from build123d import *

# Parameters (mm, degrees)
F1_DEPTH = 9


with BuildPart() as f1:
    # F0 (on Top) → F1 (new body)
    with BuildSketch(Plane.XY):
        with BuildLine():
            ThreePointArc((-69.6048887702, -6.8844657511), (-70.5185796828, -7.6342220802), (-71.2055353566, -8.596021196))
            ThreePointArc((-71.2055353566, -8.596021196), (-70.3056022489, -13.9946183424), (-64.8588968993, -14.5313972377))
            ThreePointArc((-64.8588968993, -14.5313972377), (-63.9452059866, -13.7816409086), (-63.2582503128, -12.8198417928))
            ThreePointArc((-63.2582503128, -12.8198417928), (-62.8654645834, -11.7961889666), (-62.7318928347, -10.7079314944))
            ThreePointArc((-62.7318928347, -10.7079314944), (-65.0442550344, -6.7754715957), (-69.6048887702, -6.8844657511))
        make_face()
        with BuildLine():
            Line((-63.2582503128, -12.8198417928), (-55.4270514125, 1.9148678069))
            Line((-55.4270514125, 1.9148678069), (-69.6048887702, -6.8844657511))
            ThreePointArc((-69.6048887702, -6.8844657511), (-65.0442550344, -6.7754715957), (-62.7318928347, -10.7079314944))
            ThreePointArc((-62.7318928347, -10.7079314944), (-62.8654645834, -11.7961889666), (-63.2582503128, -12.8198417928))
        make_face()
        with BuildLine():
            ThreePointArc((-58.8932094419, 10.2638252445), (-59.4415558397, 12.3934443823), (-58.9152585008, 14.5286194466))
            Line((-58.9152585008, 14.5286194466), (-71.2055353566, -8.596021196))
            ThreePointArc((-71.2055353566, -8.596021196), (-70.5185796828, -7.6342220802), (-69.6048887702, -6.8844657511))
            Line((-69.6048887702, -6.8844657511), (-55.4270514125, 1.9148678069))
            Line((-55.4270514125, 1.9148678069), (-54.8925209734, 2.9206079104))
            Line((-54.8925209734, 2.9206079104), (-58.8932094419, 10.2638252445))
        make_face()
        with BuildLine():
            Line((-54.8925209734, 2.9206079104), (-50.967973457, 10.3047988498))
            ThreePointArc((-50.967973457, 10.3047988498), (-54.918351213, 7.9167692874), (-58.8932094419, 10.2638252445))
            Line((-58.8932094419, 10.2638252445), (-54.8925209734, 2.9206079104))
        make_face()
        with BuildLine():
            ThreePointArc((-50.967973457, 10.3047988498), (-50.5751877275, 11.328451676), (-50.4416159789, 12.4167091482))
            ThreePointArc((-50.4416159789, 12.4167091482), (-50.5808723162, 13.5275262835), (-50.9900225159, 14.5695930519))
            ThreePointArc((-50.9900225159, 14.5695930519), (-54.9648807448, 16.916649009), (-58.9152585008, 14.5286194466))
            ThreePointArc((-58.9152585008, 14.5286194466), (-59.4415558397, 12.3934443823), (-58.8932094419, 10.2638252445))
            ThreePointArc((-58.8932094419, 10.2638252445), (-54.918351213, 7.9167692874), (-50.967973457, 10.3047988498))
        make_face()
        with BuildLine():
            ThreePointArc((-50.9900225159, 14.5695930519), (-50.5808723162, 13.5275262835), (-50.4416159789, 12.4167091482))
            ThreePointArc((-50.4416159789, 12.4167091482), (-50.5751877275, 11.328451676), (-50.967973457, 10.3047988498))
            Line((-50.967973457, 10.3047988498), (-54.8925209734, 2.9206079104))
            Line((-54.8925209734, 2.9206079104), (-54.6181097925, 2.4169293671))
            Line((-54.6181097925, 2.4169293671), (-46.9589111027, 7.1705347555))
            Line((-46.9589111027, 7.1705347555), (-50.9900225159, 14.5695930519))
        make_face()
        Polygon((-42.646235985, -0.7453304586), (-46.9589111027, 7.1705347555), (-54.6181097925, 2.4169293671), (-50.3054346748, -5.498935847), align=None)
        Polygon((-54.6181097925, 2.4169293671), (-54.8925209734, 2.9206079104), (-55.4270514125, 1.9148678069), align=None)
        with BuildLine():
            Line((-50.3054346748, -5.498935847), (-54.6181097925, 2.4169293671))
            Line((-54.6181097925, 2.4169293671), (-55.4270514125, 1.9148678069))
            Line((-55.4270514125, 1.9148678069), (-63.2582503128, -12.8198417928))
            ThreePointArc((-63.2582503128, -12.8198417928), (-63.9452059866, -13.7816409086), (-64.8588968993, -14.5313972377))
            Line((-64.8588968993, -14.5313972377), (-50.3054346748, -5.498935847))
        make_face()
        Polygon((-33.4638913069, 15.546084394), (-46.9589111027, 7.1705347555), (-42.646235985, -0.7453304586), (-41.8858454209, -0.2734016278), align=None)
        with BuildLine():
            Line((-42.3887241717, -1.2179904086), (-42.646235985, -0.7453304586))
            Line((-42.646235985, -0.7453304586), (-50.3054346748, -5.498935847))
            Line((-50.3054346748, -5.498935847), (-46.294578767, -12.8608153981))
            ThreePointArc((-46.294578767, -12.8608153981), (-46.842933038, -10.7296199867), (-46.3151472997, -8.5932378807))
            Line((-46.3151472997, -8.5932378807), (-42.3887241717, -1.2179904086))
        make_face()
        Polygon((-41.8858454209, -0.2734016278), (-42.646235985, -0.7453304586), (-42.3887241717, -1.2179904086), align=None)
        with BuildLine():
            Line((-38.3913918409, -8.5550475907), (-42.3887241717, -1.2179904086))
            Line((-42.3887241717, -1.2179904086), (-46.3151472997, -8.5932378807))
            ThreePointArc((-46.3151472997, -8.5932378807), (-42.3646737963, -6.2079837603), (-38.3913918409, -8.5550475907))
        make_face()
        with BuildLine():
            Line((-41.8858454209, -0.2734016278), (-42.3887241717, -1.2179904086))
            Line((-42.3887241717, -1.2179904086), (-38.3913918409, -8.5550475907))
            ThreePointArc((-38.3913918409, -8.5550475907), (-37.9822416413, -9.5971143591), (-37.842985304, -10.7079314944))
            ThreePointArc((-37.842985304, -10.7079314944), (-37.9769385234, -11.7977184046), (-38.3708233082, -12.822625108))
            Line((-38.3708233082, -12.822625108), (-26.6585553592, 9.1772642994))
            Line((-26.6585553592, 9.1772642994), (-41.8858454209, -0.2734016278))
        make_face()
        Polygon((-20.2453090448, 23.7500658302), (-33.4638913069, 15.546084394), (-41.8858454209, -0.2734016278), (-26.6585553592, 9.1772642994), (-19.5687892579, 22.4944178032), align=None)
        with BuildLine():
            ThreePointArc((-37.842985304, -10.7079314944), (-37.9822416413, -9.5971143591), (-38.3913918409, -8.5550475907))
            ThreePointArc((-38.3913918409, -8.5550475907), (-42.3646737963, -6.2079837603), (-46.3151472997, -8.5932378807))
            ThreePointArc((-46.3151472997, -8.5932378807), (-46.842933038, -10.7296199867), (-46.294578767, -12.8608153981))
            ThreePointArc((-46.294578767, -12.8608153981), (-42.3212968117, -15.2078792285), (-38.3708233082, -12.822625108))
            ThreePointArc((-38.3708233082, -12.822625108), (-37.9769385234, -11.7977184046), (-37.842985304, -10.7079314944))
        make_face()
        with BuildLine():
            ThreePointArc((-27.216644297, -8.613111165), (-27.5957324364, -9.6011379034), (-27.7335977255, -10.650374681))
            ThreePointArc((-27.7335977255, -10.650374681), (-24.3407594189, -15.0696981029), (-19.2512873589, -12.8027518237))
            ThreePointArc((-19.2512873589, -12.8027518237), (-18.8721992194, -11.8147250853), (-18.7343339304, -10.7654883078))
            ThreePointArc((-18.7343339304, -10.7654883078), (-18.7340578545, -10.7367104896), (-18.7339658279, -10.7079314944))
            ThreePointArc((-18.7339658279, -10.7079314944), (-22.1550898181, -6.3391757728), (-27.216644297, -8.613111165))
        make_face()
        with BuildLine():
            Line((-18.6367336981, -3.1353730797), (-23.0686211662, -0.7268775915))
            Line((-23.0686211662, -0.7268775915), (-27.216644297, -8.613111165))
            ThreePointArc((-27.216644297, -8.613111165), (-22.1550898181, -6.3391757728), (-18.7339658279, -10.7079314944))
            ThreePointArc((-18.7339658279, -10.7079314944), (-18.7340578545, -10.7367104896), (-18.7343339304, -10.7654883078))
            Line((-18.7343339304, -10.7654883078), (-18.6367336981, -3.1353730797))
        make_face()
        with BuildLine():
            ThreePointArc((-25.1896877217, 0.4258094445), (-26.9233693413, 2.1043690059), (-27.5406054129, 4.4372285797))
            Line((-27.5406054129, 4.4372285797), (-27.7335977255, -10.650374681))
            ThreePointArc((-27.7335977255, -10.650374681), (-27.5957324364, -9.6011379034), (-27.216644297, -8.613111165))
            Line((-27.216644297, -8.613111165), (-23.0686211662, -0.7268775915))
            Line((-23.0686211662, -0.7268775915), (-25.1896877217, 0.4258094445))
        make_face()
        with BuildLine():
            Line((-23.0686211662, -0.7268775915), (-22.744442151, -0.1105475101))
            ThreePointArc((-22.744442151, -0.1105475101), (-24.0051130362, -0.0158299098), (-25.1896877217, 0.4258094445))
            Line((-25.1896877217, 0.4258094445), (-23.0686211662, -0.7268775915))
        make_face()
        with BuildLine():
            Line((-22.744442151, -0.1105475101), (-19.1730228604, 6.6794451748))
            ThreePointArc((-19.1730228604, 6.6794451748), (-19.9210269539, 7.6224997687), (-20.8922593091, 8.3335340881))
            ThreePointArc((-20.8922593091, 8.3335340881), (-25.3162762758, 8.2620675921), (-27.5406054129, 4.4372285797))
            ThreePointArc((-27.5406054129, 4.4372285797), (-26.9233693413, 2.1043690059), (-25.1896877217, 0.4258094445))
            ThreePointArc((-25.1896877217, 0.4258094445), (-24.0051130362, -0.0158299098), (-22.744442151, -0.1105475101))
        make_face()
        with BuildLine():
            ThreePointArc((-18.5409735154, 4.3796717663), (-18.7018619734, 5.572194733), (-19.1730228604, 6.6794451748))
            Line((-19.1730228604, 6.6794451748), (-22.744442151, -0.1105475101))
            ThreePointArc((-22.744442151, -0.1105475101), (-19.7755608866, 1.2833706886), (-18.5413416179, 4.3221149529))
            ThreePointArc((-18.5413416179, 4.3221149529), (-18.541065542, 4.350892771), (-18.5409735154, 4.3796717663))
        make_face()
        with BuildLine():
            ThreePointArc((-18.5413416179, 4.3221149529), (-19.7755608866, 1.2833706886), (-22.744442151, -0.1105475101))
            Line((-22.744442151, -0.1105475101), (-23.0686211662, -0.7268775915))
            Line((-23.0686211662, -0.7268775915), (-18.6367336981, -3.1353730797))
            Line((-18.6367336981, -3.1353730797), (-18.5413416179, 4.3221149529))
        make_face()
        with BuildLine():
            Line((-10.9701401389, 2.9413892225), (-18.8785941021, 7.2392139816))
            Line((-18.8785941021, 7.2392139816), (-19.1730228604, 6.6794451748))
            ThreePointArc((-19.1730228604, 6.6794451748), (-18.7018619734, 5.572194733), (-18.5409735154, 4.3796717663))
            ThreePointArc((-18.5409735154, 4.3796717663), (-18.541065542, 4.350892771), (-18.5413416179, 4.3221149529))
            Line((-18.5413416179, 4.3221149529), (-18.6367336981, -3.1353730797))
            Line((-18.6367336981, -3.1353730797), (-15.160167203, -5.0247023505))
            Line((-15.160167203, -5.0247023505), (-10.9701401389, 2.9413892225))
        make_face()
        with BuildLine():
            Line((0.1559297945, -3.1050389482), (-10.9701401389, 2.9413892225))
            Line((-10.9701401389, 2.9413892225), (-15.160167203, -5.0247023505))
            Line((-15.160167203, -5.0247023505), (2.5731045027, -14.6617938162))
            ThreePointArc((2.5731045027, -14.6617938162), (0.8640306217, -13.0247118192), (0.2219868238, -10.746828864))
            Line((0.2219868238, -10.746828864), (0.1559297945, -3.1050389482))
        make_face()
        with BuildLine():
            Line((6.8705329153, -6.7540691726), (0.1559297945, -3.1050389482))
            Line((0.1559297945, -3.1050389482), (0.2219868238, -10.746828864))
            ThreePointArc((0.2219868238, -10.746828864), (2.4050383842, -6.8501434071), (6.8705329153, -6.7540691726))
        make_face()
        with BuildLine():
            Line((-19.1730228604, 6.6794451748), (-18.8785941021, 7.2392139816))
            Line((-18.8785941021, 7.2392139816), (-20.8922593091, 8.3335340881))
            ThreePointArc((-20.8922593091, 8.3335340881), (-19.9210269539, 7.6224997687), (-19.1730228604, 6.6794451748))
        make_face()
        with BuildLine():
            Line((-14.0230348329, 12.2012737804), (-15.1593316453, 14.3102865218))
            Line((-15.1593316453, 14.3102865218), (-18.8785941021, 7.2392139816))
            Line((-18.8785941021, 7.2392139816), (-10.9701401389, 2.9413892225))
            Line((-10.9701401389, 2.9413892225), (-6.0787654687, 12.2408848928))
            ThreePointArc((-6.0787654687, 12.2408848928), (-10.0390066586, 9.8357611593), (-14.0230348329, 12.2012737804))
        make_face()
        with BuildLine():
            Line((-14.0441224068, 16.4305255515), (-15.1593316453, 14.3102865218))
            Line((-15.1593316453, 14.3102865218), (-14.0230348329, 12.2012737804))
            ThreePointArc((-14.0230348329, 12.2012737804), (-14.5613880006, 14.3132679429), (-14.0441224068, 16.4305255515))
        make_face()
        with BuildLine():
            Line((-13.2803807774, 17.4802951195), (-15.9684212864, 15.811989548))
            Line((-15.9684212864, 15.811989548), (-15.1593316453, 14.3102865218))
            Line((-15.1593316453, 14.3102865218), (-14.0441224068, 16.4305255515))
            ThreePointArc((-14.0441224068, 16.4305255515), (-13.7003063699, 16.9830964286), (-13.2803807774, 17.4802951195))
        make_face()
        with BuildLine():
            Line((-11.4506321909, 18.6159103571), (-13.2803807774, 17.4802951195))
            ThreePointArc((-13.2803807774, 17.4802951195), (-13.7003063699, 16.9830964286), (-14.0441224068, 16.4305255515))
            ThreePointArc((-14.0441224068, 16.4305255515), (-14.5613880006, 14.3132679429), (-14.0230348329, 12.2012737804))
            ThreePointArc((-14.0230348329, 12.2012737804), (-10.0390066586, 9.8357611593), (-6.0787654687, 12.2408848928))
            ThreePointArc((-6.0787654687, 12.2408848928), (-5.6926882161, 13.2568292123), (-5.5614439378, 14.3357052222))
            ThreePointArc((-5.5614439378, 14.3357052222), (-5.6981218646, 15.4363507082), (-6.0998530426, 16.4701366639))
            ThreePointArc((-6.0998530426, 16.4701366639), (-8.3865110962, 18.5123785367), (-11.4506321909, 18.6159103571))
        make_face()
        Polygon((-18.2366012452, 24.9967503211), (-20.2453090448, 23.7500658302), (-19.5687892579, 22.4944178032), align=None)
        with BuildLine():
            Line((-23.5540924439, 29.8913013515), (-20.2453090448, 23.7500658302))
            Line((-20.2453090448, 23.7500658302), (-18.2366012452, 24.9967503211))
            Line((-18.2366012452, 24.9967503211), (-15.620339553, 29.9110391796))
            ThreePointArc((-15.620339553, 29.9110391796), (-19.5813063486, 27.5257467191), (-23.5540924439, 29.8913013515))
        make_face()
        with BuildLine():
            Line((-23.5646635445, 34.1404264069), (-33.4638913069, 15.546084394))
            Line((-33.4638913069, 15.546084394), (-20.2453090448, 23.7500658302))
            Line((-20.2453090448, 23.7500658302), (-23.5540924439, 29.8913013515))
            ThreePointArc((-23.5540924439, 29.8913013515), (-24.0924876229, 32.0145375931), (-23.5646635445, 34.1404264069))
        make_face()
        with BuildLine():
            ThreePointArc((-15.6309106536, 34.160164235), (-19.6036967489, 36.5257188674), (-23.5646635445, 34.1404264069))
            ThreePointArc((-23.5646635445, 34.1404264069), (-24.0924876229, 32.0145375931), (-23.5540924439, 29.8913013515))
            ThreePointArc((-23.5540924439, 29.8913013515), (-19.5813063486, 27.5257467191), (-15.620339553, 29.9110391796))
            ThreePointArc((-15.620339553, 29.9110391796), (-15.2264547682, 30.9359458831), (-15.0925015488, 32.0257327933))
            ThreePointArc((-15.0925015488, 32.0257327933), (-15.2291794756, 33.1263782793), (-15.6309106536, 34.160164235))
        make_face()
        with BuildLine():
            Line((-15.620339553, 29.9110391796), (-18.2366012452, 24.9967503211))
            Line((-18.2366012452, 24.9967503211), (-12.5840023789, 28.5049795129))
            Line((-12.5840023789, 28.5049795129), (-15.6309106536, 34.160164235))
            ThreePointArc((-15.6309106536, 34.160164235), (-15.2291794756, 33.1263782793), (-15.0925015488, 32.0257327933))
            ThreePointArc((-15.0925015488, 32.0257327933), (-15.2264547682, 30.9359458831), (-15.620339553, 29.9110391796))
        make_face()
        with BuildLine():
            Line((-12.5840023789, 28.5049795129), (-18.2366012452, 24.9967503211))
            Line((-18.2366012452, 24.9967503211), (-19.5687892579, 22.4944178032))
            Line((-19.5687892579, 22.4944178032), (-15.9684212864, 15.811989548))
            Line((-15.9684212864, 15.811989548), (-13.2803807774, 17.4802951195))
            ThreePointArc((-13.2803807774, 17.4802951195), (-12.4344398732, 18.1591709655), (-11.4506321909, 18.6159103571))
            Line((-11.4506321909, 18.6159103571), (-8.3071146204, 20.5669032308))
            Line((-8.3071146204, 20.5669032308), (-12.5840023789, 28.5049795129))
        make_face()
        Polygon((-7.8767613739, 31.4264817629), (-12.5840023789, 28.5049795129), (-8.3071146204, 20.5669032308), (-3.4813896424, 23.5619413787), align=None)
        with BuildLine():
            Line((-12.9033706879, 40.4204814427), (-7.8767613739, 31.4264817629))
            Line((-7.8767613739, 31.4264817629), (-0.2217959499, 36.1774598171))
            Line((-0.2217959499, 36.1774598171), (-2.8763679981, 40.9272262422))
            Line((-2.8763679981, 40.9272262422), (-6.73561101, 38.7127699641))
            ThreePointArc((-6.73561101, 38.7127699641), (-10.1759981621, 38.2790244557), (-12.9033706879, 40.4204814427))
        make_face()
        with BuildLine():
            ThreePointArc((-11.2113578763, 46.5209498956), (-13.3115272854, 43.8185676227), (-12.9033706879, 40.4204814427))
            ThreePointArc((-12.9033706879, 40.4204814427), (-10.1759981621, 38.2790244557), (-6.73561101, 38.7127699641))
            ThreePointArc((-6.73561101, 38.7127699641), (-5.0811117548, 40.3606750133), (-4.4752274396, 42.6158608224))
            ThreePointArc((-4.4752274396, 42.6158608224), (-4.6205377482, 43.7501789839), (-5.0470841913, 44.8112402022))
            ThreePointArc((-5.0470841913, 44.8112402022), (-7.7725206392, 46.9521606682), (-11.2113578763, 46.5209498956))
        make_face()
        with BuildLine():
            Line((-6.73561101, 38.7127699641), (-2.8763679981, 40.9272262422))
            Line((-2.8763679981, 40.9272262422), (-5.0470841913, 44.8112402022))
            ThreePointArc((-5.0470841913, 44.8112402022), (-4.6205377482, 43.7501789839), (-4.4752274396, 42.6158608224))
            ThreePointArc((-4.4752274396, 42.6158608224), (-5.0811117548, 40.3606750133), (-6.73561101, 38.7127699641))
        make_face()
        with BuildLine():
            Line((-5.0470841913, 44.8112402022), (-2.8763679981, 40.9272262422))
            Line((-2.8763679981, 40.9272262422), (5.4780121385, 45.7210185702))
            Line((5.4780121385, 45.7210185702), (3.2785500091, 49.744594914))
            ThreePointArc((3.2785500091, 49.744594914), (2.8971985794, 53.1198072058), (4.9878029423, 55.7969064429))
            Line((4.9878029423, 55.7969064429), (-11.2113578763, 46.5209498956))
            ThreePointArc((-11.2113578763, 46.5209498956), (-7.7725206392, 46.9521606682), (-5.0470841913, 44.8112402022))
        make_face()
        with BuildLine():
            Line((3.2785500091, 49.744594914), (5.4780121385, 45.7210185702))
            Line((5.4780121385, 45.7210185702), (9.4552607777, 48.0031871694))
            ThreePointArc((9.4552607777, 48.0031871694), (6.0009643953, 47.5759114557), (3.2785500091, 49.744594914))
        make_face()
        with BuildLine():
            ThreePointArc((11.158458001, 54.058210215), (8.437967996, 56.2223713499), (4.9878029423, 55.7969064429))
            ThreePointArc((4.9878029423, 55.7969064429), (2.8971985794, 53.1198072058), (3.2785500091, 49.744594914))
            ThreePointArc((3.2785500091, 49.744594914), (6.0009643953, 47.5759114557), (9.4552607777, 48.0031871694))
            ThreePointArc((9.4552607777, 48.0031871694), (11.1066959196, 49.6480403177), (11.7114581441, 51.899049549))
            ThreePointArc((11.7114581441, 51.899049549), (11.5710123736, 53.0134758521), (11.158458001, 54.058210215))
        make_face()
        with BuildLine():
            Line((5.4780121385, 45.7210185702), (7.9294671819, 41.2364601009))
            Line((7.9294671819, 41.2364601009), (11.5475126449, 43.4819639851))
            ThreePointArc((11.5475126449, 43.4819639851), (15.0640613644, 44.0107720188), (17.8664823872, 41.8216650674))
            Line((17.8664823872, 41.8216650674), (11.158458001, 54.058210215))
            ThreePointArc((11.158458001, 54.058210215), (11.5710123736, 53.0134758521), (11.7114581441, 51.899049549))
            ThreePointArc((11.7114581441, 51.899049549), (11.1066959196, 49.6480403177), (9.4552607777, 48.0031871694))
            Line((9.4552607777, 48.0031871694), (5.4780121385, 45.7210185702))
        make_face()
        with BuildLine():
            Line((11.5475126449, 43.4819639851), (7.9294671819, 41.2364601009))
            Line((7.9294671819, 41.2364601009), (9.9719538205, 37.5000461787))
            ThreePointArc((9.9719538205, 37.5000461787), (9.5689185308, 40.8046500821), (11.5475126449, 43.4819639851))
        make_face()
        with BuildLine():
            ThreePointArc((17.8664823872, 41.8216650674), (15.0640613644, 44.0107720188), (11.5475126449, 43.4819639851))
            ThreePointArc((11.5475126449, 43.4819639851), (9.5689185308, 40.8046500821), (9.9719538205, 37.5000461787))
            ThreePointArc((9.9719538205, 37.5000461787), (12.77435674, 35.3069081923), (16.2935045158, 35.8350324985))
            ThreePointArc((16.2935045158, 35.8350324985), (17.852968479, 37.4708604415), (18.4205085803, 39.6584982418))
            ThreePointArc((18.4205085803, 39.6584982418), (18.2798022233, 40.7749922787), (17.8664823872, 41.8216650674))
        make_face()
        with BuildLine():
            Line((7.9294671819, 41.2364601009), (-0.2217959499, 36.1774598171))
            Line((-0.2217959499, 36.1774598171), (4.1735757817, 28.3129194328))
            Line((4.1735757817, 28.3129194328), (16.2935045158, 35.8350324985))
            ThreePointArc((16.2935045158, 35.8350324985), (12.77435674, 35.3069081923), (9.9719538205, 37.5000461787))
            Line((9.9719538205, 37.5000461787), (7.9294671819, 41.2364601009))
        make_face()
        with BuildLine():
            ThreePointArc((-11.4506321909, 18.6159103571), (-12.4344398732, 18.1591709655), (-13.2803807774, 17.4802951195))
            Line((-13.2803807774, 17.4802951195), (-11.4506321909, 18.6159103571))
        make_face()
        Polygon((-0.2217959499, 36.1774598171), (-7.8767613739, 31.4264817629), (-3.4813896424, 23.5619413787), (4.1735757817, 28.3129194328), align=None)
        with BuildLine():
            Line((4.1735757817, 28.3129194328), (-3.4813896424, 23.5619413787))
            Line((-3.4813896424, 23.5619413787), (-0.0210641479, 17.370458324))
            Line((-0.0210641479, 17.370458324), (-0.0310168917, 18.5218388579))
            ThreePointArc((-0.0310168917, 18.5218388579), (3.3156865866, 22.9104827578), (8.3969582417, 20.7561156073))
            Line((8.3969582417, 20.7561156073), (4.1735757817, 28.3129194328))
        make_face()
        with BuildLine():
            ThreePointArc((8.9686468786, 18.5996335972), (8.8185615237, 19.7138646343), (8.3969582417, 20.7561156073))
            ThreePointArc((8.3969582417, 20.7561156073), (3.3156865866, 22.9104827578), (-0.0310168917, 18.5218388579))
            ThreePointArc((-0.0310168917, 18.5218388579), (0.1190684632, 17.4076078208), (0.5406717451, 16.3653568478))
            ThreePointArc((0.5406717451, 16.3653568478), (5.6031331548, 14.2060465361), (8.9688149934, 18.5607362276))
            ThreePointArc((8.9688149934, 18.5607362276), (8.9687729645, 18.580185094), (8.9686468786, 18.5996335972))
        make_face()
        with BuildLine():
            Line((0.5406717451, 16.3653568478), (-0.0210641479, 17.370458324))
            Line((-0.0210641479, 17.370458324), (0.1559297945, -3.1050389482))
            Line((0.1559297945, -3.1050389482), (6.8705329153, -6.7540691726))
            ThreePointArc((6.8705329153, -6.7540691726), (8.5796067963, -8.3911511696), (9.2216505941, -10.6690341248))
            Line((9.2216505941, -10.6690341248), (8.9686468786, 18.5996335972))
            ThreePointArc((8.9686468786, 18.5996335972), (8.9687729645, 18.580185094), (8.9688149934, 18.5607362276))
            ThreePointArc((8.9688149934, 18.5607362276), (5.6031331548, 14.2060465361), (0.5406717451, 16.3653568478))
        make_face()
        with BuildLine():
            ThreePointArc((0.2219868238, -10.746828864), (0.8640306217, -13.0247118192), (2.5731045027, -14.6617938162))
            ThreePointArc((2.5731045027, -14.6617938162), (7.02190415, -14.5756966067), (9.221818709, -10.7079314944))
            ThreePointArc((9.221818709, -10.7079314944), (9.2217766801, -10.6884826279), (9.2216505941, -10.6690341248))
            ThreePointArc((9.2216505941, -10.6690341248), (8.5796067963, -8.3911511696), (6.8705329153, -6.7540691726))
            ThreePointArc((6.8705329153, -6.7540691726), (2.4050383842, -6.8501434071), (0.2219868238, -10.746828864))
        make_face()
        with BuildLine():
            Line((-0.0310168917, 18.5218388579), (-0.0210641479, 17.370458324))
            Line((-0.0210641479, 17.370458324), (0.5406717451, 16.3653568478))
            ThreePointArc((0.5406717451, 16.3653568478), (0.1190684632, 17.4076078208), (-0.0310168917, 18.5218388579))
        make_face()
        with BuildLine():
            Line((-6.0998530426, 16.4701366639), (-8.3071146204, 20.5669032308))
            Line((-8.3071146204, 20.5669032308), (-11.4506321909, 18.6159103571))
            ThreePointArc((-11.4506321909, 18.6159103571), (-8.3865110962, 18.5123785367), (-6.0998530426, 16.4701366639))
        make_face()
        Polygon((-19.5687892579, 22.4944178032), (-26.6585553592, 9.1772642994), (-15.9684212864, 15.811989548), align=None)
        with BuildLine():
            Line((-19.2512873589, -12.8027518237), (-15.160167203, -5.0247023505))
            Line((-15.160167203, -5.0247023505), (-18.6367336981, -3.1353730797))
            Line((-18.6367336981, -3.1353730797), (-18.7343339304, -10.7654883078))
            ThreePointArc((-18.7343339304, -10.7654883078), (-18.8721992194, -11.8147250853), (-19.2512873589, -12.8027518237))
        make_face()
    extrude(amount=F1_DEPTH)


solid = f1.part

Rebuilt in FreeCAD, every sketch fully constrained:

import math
import FreeCAD as App
import Part
import Sketcher
from FreeCAD import Vector


def add_polygon(sketch, points):
    """Adds a closed chain of lines whose ends are joined by coincident constraints."""
    first, n = sketch.GeometryCount, len(points)
    for a, b in zip(points, points[1:] + points[:1]):
        sketch.addGeometry(Part.LineSegment(App.Vector(*a, 0), App.Vector(*b, 0)), False)
    for i in range(n):
        sketch.addConstraint(Sketcher.Constraint("Coincident", first + i, 2, first + (i + 1) % n, 1))

doc = App.newDocument("Part")
body = doc.addObject("PartDesign::Body", "Body")

# Sketch on XY plane
sketch1 = doc.addObject("Sketcher::SketchObject", "Sketch")
body.addObject(sketch1)
sketch1.AttachmentSupport = (doc.XY_Plane, [""])
sketch1.MapMode = "FlatFace"
sketch1.addGeometry(Part.ArcOfCircle(Part.Circle(Vector(4.468815, 18.560736, 0), Vector(0, 0, 1), 4.5), math.radians(0.495263), math.radians(29.200159)), False)  # 0
sketch1.addGeometry(Part.LineSegment(Vector(8.396958, 20.756116, 0), Vector(4.173576, 28.312919, 0)), False)  # 1
sketch1.addGeometry(Part.LineSegment(Vector(4.173576, 28.312919, 0), Vector(16.293505, 35.835032, 0)), False)  # 2
sketch1.addGeometry(Part.ArcOfCircle(Part.Circle(Vector(13.920509, 39.658498, 0), Vector(0, 0, 1), 4.5), math.radians(-58.174606), math.radians(0)), False)  # 3
sketch1.addGeometry(Part.ArcOfCircle(Part.Circle(Vector(13.920509, 39.658498, 0), Vector(0, 0, 1), 4.5), math.radians(0), math.radians(28.731374)), False)  # 4
sketch1.addGeometry(Part.LineSegment(Vector(17.866482, 41.821665, 0), Vector(11.158458, 54.05821, 0)), False)  # 5
sketch1.addGeometry(Part.ArcOfCircle(Part.Circle(Vector(7.219792, 51.89905, 0), Vector(0, 0, 1), 4.491666), math.radians(28.731374), math.radians(119.796297)), False)  # 6
sketch1.addGeometry(Part.LineSegment(Vector(4.987803, 55.796906, 0), Vector(-11.211358, 46.52095, 0)), False)  # 7
sketch1.addGeometry(Part.ArcOfCircle(Part.Circle(Vector(-8.975227, 42.615861, 0), Vector(0, 0, 1), 4.5), math.radians(119.796297), math.radians(209.200159)), False)  # 8
sketch1.addGeometry(Part.LineSegment(Vector(-12.903371, 40.420481, 0), Vector(-7.876761, 31.426482, 0)), False)  # 9
sketch1.addGeometry(Part.LineSegment(Vector(-7.876761, 31.426482, 0), Vector(-12.584002, 28.50498, 0)), False)  # 10
sketch1.addGeometry(Part.LineSegment(Vector(-12.584002, 28.50498, 0), Vector(-15.630911, 34.160164, 0)), False)  # 11
sketch1.addGeometry(Part.ArcOfCircle(Part.Circle(Vector(-19.592502, 32.025733, 0), Vector(0, 0, 1), 4.5), math.radians(28.314961), math.radians(151.970123)), False)  # 12
sketch1.addGeometry(Part.LineSegment(Vector(-23.564664, 34.140426, 0), Vector(-33.463891, 15.546084, 0)), False)  # 13
sketch1.addGeometry(Part.LineSegment(Vector(-33.463891, 15.546084, 0), Vector(-46.958911, 7.170535, 0)), False)  # 14
sketch1.addGeometry(Part.LineSegment(Vector(-46.958911, 7.170535, 0), Vector(-50.990023, 14.569593, 0)), False)  # 15
sketch1.addGeometry(Part.ArcOfCircle(Part.Circle(Vector(-54.941616, 12.416709, 0), Vector(0, 0, 1), 4.5), math.radians(28.582172), math.radians(152.010263)), False)  # 16
sketch1.addGeometry(Part.LineSegment(Vector(-58.915259, 14.528619, 0), Vector(-71.205535, -8.596021, 0)), False)  # 17
sketch1.addGeometry(Part.ArcOfCircle(Part.Circle(Vector(-67.231893, -10.707931, 0), Vector(0, 0, 1), 4.5), math.radians(152.010263), math.radians(301.825394)), False)  # 18
sketch1.addGeometry(Part.LineSegment(Vector(-64.858897, -14.531397, 0), Vector(-50.305435, -5.498936, 0)), False)  # 19
sketch1.addGeometry(Part.LineSegment(Vector(-50.305435, -5.498936, 0), Vector(-46.294579, -12.860815, 0)), False)  # 20
sketch1.addGeometry(Part.ArcOfCircle(Part.Circle(Vector(-42.342985, -10.707931, 0), Vector(0, 0, 1), 4.5), math.radians(-151.417828), math.radians(-28.029877)), False)  # 21
sketch1.addGeometry(Part.LineSegment(Vector(-38.370823, -12.822625, 0), Vector(-26.658555, 9.177264, 0)), False)  # 22
sketch1.addGeometry(Part.LineSegment(Vector(-26.658555, 9.177264, 0), Vector(-15.968421, 15.81199, 0)), False)  # 23
sketch1.addGeometry(Part.LineSegment(Vector(-15.968421, 15.81199, 0), Vector(-15.159332, 14.310287, 0)), False)  # 24
sketch1.addGeometry(Part.LineSegment(Vector(-15.159332, 14.310287, 0), Vector(-18.878594, 7.239214, 0)), False)  # 25
sketch1.addGeometry(Part.LineSegment(Vector(-18.878594, 7.239214, 0), Vector(-20.892259, 8.333534, 0)), False)  # 26
sketch1.addGeometry(Part.ArcOfCircle(Part.Circle(Vector(-23.040974, 4.379672, 0), Vector(0, 0, 1), 4.5), math.radians(61.478269), math.radians(179.267144)), False)  # 27
sketch1.addGeometry(Part.LineSegment(Vector(-27.540605, 4.437229, 0), Vector(-27.733598, -10.650375, 0)), False)  # 28
sketch1.addGeometry(Part.ArcOfCircle(Part.Circle(Vector(-23.233966, -10.707931, 0), Vector(0, 0, 1), 4.5), math.radians(179.267144), math.radians(332.256402)), False)  # 29
sketch1.addGeometry(Part.LineSegment(Vector(-19.251287, -12.802752, 0), Vector(-15.160167, -5.024702, 0)), False)  # 30
sketch1.addGeometry(Part.LineSegment(Vector(-15.160167, -5.024702, 0), Vector(2.573105, -14.661794, 0)), False)  # 31
sketch1.addGeometry(Part.ArcOfCircle(Part.Circle(Vector(4.721819, -10.707931, 0), Vector(0, 0, 1), 4.5), math.radians(-118.521731), math.radians(0)), False)  # 32
sketch1.addGeometry(Part.ArcOfCircle(Part.Circle(Vector(4.721822, -10.707931, 0), Vector(0, 0, 1), 4.499996), math.radians(0), math.radians(0.495263)), False)  # 33
sketch1.addGeometry(Part.LineSegment(Vector(9.221651, -10.669034, 0), Vector(8.968647, 18.599634, 0)), False)  # 34
sketch1.addGeometry(Part.LineSegment(Vector(-3.48139, 23.561941, 0), Vector(-0.021064, 17.370458, 0)), False)  # 35
sketch1.addGeometry(Part.LineSegment(Vector(-0.021064, 17.370458, 0), Vector(0.15593, -3.105039, 0)), False)  # 36
sketch1.addGeometry(Part.LineSegment(Vector(0.15593, -3.105039, 0), Vector(-10.97014, 2.941389, 0)), False)  # 37
sketch1.addGeometry(Part.LineSegment(Vector(-10.97014, 2.941389, 0), Vector(-6.078765, 12.240885, 0)), False)  # 38
sketch1.addGeometry(Part.ArcOfCircle(Part.Circle(Vector(-10.061444, 14.335705, 0), Vector(0, 0, 1), 4.5), math.radians(-27.743598), math.radians(0)), False)  # 39
sketch1.addGeometry(Part.ArcOfCircle(Part.Circle(Vector(-10.061444, 14.335705, 0), Vector(0, 0, 1), 4.5), math.radians(0), math.radians(28.314961)), False)  # 40
sketch1.addGeometry(Part.LineSegment(Vector(-6.099853, 16.470137, 0), Vector(-8.307115, 20.566903, 0)), False)  # 41
sketch1.addGeometry(Part.LineSegment(Vector(-8.307115, 20.566903, 0), Vector(-3.48139, 23.561941, 0)), False)  # 42
add_polygon(sketch1, [(-0.221796, 36.17746), (-2.876368, 40.927226), (5.478012, 45.721019), (7.929467, 41.23646)])  # lines 43-46
sketch1.addConstraint([
    Sketcher.Constraint("Coincident", 0, 2, 1, 1),
    Sketcher.Constraint("Coincident", 1, 2, 2, 1),
    Sketcher.Constraint("Coincident", 2, 2, 3, 1),
    Sketcher.Constraint("Coincident", 3, 2, 4, 1),
    Sketcher.Constraint("Coincident", 4, 2, 5, 1),
    Sketcher.Constraint("Coincident", 5, 2, 6, 1),
    Sketcher.Constraint("Coincident", 6, 2, 7, 1),
    Sketcher.Constraint("Coincident", 7, 2, 8, 1),
    Sketcher.Constraint("Coincident", 8, 2, 9, 1),
    Sketcher.Constraint("Coincident", 9, 2, 10, 1),
    Sketcher.Constraint("Coincident", 10, 2, 11, 1),
    Sketcher.Constraint("Coincident", 11, 2, 12, 1),
    Sketcher.Constraint("Coincident", 12, 2, 13, 1),
    Sketcher.Constraint("Coincident", 13, 2, 14, 1),
    Sketcher.Constraint("Coincident", 14, 2, 15, 1),
    Sketcher.Constraint("Coincident", 15, 2, 16, 1),
    Sketcher.Constraint("Coincident", 16, 2, 17, 1),
    Sketcher.Constraint("Coincident", 17, 2, 18, 1),
    Sketcher.Constraint("Coincident", 18, 2, 19, 1),
    Sketcher.Constraint("Coincident", 19, 2, 20, 1),
    Sketcher.Constraint("Coincident", 20, 2, 21, 1),
    Sketcher.Constraint("Coincident", 21, 2, 22, 1),
    Sketcher.Constraint("Coincident", 22, 2, 23, 1),
    Sketcher.Constraint("Coincident", 23, 2, 24, 1),
    Sketcher.Constraint("Coincident", 24, 2, 25, 1),
    Sketcher.Constraint("Coincident", 25, 2, 26, 1),
    Sketcher.Constraint("Coincident", 26, 2, 27, 1),
    Sketcher.Constraint("Coincident", 27, 2, 28, 1),
    Sketcher.Constraint("Coincident", 28, 2, 29, 1),
    Sketcher.Constraint("Coincident", 29, 2, 30, 1),
    Sketcher.Constraint("Coincident", 30, 2, 31, 1),
    Sketcher.Constraint("Coincident", 31, 2, 32, 1),
    Sketcher.Constraint("Coincident", 32, 2, 33, 1),
    Sketcher.Constraint("Coincident", 33, 2, 34, 1),
    Sketcher.Constraint("Coincident", 34, 2, 0, 1),
    Sketcher.Constraint("Coincident", 35, 2, 36, 1),
    Sketcher.Constraint("Coincident", 36, 2, 37, 1),
    Sketcher.Constraint("Coincident", 37, 2, 38, 1),
    Sketcher.Constraint("Coincident", 38, 2, 39, 1),
    Sketcher.Constraint("Coincident", 39, 2, 40, 1),
    Sketcher.Constraint("Coincident", 40, 2, 41, 1),
    Sketcher.Constraint("Coincident", 41, 2, 42, 1),
    Sketcher.Constraint("Coincident", 42, 2, 35, 1),
    Sketcher.Constraint("Coincident", 4, 3, 3, 3),
    Sketcher.Constraint("Coincident", 33, 3, 32, 3),
    Sketcher.Constraint("Coincident", 40, 3, 39, 3),
    Sketcher.Constraint("Radius", 0, 4.5),
    Sketcher.Constraint("Radius", 3, 4.5),
    Sketcher.Constraint("Radius", 8, 4.5),
    Sketcher.Constraint("Radius", 12, 4.5),
    Sketcher.Constraint("Radius", 16, 4.5),
    Sketcher.Constraint("Radius", 18, 4.5),
    Sketcher.Constraint("Radius", 21, 4.5),
    Sketcher.Constraint("Radius", 27, 4.5),
    Sketcher.Constraint("Radius", 29, 4.5),
    Sketcher.Constraint("Radius", 32, 4.5),
    Sketcher.Constraint("Radius", 39, 4.5),
    Sketcher.Constraint("Radius", 6, 4.491666),
    Sketcher.Constraint("Distance", 42, 5.679602),
    Sketcher.Constraint("DistanceY", -1, 1, 3, 3, 39.658498),
    Sketcher.Constraint("DistanceX", 12, 3, -1, 1, 19.592502),
    Sketcher.Constraint("DistanceY", -1, 1, 3, 2, 39.658498),
    Sketcher.Constraint("Distance", 1, 8.656919),
    Sketcher.Constraint("Distance", 2, 14.264461),
    Sketcher.Constraint("Distance", 5, 13.954592),
    Sketcher.Constraint("Distance", 7, 18.666981),
    Sketcher.Constraint("Distance", 9, 10.303341),
    Sketcher.Constraint("Distance", 13, 21.065238),
    Sketcher.Constraint("Distance", 17, 26.187782),
    Sketcher.Constraint("Distance", 19, 17.128591),
    Sketcher.Constraint("Distance", 20, 8.383569),
    Sketcher.Constraint("Distance", 22, 24.92333),
    Sketcher.Constraint("Distance", 26, 2.291808),
    Sketcher.Constraint("Distance", 34, 29.269761),
    Sketcher.Constraint("Distance", 45, 5.110861),
    Sketcher.Constraint("Distance", 46, 9.593569),
    Sketcher.Constraint("DistanceX", -1, 1, 3, 3, 13.920509),
    Sketcher.Constraint("DistanceY", -1, 1, 6, 3, 51.89905),
    Sketcher.Constraint("DistanceY", -1, 1, 8, 3, 42.615861),
    Sketcher.Constraint("DistanceY", -1, 1, 16, 3, 12.416709),
    Sketcher.Constraint("DistanceY", 18, 3, -1, 1, 10.707931),
    Sketcher.Constraint("DistanceY", 21, 3, -1, 1, 10.707931),
    Sketcher.Constraint("DistanceY", -1, 1, 27, 3, 4.379672),
    Sketcher.Constraint("DistanceY", 29, 3, -1, 1, 10.707931),
    Sketcher.Constraint("DistanceX", -1, 1, 32, 3, 4.721819),
    Sketcher.Constraint("DistanceY", 32, 3, -1, 1, 10.707931),
    Sketcher.Constraint("DistanceX", -1, 1, 0, 2, 8.396958),
    Sketcher.Constraint("DistanceY", -1, 1, 1, 2, 28.312919),
    Sketcher.Constraint("DistanceX", -1, 1, 5, 2, 11.158458),
    Sketcher.Constraint("DistanceY", -1, 1, 5, 2, 54.05821),
    Sketcher.Constraint("DistanceY", -1, 1, 7, 2, 46.52095),
    Sketcher.Constraint("DistanceX", 8, 2, -1, 1, 12.903371),
    Sketcher.Constraint("DistanceY", -1, 1, 8, 2, 40.420481),
    Sketcher.Constraint("DistanceX", 9, 2, -1, 1, 7.876761),
    Sketcher.Constraint("DistanceY", -1, 1, 10, 2, 28.50498),
    Sketcher.Constraint("DistanceX", 11, 2, -1, 1, 15.630911),
    Sketcher.Constraint("DistanceX", 13, 2, -1, 1, 33.463891),
    Sketcher.Constraint("DistanceX", 14, 2, -1, 1, 46.958911),
    Sketcher.Constraint("DistanceX", 16, 2, -1, 1, 58.915259),
    Sketcher.Constraint("DistanceY", -1, 1, 16, 2, 14.528619),
    Sketcher.Constraint("DistanceY", 17, 2, -1, 1, 8.596021),
    Sketcher.Constraint("DistanceX", 20, 2, -1, 1, 46.294579),
    Sketcher.Constraint("DistanceX", 23, 2, -1, 1, 15.968421),
    Sketcher.Constraint("DistanceY", -1, 1, 23, 2, 15.81199),
    Sketcher.Constraint("DistanceX", 24, 2, -1, 1, 15.159332),
    Sketcher.Constraint("DistanceX", 26, 2, -1, 1, 20.892259),
    Sketcher.Constraint("DistanceY", -1, 1, 27, 2, 4.437229),
    Sketcher.Constraint("DistanceY", 29, 2, -1, 1, 12.802752),
    Sketcher.Constraint("DistanceY", 32, 2, -1, 1, 10.707931),
    Sketcher.Constraint("DistanceX", -1, 1, 33, 2, 9.221651),
    Sketcher.Constraint("DistanceY", -1, 1, 35, 2, 17.370458),
    Sketcher.Constraint("DistanceX", -1, 1, 36, 2, 0.15593),
    Sketcher.Constraint("DistanceY", 36, 2, -1, 1, 3.105039),
    Sketcher.Constraint("DistanceX", 37, 2, -1, 1, 10.97014),
    Sketcher.Constraint("DistanceY", -1, 1, 37, 2, 2.941389),
    Sketcher.Constraint("DistanceX", 42, 2, -1, 1, 3.48139),
    Sketcher.Constraint("DistanceY", -1, 1, 42, 2, 23.561941),
    Sketcher.Constraint("DistanceY", -1, 1, 44, 2, 45.721019),
    Sketcher.Constraint("DistanceY", -1, 1, 45, 2, 41.23646),
    Sketcher.Constraint("DistanceY", -1, 1, 46, 2, 36.17746),
    Sketcher.Constraint("Distance", 10, 5.540153),
    Sketcher.Constraint("Distance", 11, 6.423766),
    Sketcher.Constraint("Distance", 14, 15.882865),
    Sketcher.Constraint("Distance", 15, 8.425908),
    Sketcher.Constraint("Distance", 23, 12.581675),
    Sketcher.Constraint("Distance", 24, 1.705795),
    Sketcher.Constraint("Distance", 25, 7.989554),
    Sketcher.Constraint("Distance", 28, 15.088838),
    Sketcher.Constraint("Distance", 30, 8.788363),
    Sketcher.Constraint("Distance", 31, 20.182727),
    Sketcher.Constraint("Distance", 35, 7.092835),
    Sketcher.Constraint("Distance", 38, 10.507434),
    Sketcher.Constraint("Distance", 41, 4.653547),
    Sketcher.Constraint("Distance", 43, 5.441235),
    Sketcher.Constraint("Distance", 44, 9.632036),
    Sketcher.Constraint("DistanceX", -1, 1, 0, 3, 4.468815),
    Sketcher.Constraint("DistanceY", -1, 1, 0, 3, 18.560736),
    Sketcher.Constraint("DistanceX", 21, 3, -1, 1, 42.342985),
    Sketcher.Constraint("DistanceX", 27, 3, -1, 1, 23.040974),
    Sketcher.Constraint("DistanceX", 29, 3, -1, 1, 23.233966),
    Sketcher.Constraint("DistanceX", 39, 3, -1, 1, 10.061444),
    Sketcher.Constraint("DistanceY", -1, 1, 39, 3, 14.335705),
    Sketcher.Constraint("DistanceX", 12, 2, -1, 1, 23.564664),
    Sketcher.Constraint("DistanceX", 18, 2, -1, 1, 64.858897),
    Sketcher.Constraint("DistanceX", 21, 2, -1, 1, 38.370823),
    Sketcher.Constraint("DistanceX", 30, 2, -1, 1, 15.160167),
    Sketcher.Constraint("DistanceY", -1, 1, 39, 2, 14.335705),
    Sketcher.Constraint("DistanceX", 40, 2, -1, 1, 6.099853),
    Sketcher.Constraint("DistanceX", 43, 2, -1, 1, 2.876368),
])
pad1 = doc.addObject("PartDesign::Pad", "Pad")
body.addObject(pad1)
pad1.Profile = sketch1
pad1.Length = 9

doc.recompute()
